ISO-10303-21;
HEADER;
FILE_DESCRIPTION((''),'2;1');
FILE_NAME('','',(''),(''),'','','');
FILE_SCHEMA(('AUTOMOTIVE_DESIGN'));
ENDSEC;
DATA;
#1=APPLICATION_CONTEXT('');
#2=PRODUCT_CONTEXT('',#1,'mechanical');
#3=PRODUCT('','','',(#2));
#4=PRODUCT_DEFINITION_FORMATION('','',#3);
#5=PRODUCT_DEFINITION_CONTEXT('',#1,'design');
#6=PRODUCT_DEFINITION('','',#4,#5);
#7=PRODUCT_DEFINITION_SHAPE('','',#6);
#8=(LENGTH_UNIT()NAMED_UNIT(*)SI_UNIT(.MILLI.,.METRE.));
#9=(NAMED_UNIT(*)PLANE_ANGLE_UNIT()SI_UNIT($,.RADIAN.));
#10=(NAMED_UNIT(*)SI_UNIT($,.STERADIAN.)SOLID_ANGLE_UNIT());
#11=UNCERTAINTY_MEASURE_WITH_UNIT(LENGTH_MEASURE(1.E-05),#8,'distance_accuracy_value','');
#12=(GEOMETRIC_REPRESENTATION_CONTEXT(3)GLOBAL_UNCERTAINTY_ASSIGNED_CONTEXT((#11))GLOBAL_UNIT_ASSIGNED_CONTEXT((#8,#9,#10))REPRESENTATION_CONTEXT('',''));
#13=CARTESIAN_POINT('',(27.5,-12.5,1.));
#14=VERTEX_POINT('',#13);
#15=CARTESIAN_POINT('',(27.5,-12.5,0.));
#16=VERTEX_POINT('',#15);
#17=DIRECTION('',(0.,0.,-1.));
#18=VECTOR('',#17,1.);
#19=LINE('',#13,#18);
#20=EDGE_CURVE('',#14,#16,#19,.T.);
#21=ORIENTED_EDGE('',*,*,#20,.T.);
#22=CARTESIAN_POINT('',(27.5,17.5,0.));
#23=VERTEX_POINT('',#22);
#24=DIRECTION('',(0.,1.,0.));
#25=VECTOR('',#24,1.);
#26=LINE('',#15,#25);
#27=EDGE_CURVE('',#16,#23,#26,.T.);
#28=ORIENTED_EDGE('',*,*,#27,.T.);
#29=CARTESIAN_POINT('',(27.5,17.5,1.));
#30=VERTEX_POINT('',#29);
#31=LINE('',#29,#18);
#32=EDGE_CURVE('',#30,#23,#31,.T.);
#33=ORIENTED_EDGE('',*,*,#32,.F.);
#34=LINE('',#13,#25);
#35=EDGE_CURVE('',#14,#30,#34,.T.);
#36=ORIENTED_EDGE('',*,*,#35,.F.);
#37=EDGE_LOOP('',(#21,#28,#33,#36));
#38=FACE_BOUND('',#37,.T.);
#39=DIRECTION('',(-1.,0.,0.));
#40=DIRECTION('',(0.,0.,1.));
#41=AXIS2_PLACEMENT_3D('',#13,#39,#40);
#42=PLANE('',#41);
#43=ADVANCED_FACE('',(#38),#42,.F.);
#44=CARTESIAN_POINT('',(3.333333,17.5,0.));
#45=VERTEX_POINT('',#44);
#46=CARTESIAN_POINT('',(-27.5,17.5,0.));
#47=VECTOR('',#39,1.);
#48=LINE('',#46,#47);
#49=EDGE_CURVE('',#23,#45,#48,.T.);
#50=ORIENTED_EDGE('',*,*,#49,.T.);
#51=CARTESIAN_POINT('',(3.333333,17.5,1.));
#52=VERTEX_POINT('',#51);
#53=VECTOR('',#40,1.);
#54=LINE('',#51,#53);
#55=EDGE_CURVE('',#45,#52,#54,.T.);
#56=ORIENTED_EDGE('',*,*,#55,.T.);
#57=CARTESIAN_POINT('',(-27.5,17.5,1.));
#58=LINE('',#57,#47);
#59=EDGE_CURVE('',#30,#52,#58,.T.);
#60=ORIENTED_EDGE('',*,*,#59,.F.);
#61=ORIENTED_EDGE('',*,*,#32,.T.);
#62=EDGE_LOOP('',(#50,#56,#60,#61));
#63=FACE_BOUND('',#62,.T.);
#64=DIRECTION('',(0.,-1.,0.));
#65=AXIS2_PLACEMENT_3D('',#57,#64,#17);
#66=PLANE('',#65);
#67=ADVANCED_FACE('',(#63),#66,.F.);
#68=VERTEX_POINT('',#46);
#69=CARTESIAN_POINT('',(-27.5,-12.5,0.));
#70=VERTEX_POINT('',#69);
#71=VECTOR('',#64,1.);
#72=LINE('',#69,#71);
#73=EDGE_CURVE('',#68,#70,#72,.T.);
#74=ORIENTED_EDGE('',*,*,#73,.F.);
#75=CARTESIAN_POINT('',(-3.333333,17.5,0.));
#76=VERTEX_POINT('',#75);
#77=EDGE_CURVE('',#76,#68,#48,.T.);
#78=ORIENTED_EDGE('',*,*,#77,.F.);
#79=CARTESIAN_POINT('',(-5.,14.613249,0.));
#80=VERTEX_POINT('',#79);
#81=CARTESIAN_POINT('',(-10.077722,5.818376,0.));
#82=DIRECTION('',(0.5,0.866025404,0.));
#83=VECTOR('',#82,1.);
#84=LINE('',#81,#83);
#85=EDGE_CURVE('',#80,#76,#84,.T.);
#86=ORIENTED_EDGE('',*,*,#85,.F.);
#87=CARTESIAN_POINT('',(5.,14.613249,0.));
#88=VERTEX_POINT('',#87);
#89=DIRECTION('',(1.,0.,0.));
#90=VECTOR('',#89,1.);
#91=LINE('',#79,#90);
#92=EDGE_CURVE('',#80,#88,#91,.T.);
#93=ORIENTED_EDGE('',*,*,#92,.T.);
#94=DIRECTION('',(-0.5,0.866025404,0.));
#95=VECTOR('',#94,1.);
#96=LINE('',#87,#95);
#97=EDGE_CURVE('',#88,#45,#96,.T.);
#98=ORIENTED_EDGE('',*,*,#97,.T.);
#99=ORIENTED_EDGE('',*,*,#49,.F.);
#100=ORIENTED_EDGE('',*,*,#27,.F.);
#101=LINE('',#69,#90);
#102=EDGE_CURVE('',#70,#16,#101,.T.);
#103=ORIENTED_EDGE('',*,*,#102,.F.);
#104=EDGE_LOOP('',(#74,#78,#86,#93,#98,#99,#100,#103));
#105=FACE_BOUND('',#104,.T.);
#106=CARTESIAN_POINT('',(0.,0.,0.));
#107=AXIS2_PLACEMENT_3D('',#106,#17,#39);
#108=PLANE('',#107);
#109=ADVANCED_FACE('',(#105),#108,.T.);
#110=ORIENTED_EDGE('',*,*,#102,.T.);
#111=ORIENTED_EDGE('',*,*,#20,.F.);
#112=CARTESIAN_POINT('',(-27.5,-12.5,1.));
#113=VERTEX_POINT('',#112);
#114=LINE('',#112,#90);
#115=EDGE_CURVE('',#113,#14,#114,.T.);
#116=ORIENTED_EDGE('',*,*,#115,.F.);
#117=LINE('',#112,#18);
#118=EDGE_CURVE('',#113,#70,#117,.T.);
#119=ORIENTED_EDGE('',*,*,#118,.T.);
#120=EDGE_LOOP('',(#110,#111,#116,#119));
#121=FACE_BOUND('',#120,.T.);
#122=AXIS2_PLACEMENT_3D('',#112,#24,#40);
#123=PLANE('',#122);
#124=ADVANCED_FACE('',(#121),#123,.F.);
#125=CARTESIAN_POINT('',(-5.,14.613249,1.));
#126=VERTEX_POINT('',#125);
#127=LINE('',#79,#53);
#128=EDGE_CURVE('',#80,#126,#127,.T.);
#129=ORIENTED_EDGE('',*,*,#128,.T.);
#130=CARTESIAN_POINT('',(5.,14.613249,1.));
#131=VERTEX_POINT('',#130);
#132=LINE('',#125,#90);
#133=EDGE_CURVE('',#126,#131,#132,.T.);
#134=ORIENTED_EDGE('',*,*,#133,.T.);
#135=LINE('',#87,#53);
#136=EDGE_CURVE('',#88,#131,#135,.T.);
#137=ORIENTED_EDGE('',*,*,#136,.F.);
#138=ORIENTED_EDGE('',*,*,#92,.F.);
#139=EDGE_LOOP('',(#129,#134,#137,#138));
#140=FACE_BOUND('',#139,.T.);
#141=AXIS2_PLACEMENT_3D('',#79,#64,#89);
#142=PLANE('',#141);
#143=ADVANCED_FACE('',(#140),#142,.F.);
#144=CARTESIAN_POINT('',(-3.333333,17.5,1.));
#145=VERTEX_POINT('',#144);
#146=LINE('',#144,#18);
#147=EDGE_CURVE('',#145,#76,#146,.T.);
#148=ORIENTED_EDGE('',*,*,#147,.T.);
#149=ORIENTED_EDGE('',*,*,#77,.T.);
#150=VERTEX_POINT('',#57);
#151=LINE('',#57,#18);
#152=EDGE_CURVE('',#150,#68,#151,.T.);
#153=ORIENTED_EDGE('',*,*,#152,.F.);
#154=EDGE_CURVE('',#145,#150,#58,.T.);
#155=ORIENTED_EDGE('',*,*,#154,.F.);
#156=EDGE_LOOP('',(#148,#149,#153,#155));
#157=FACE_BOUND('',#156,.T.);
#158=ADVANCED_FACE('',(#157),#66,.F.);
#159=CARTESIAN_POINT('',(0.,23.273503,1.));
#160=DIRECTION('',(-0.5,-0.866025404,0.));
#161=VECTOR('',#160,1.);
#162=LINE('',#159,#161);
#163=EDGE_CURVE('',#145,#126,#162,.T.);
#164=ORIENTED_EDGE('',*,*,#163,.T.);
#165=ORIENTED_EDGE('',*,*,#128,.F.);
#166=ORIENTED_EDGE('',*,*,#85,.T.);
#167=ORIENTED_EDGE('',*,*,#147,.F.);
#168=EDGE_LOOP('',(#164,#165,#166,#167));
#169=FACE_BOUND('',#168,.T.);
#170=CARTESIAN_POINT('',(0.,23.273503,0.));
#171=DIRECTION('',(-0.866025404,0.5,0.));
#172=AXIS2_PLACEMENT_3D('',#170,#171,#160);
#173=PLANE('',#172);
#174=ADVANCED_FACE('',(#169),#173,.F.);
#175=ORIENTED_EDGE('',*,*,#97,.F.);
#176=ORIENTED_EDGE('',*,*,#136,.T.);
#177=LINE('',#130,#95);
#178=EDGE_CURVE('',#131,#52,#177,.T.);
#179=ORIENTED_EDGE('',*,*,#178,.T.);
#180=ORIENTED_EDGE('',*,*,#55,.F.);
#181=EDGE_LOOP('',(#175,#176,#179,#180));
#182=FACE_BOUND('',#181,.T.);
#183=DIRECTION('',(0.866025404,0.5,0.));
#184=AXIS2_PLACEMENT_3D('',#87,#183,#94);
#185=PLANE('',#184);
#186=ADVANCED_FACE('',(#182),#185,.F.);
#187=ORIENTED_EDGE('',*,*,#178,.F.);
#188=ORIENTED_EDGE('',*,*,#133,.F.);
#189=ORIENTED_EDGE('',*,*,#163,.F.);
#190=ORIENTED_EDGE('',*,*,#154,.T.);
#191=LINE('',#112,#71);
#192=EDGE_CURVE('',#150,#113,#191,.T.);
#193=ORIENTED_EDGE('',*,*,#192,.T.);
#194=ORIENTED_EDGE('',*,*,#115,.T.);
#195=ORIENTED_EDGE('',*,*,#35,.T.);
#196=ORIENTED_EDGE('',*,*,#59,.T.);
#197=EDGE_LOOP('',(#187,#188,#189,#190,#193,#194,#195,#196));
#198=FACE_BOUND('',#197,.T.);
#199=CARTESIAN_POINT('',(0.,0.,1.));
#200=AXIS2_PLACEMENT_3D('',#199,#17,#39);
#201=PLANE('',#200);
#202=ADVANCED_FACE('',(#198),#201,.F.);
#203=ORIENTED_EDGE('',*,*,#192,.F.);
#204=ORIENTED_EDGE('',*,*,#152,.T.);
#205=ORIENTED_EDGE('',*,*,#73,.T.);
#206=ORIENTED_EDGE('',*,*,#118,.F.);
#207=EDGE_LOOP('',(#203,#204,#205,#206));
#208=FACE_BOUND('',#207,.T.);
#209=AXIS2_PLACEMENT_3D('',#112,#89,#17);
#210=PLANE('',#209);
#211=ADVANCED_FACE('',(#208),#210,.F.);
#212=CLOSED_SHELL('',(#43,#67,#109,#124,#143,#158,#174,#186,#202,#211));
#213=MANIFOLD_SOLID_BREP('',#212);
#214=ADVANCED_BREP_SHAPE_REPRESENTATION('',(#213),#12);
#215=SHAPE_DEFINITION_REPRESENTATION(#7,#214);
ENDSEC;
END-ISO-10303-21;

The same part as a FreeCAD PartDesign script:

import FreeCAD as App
import Part
import Sketcher

V = App.Vector
Q = App.Units.Quantity

doc = App.newDocument("Part")
body = doc.addObject("PartDesign::Body", "Body")

# Sketch on XY plane
sketch1 = doc.addObject("Sketcher::SketchObject", "Sketch")
body.addObject(sketch1)
sketch1.AttachmentSupport = (doc.XY_Plane, [""])
sketch1.MapMode = "FlatFace"
sketch1.addGeometry(Part.LineSegment(V(-28, 18, 0), V(-28, -12, 0)), False)
sketch1.addGeometry(Part.LineSegment(V(-28, -12, 0), V(28, -12, 0)), False)
sketch1.addGeometry(Part.LineSegment(V(28, -12, 0), V(28, 18, 0)), False)
sketch1.addGeometry(Part.LineSegment(V(28, 18, 0), V(-28, 18, 0)), False)
sketch1.addConstraint(Sketcher.Constraint("Coincident", 0, 2, 1, 1))
sketch1.addConstraint(Sketcher.Constraint("Coincident", 1, 2, 2, 1))
sketch1.addConstraint(Sketcher.Constraint("Coincident", 2, 2, 3, 1))
sketch1.addConstraint(Sketcher.Constraint("Coincident", 3, 2, 0, 1))
sketch1.addConstraint(Sketcher.Constraint("Vertical", 0))
sketch1.addConstraint(Sketcher.Constraint("Horizontal", 1))
sketch1.addConstraint(Sketcher.Constraint("Vertical", 2))
sketch1.addConstraint(Sketcher.Constraint("Horizontal", 3))
sketch1.addConstraint(Sketcher.Constraint("DistanceX", 1, 1, 1, 2, Q("55 mm")))
sketch1.addConstraint(Sketcher.Constraint("DistanceY", 0, 2, 0, 1, Q("30 mm")))
sketch1.addConstraint(Sketcher.Constraint("DistanceX", 0, 2, -1, 1, Q("27.5 mm")))
sketch1.addConstraint(Sketcher.Constraint("DistanceY", 0, 2, -1, 1, Q("12.5 mm")))
pad1 = doc.addObject("PartDesign::Pad", "Pad")
body.addObject(pad1)
pad1.Profile = sketch1
pad1.Length = 1

# Sketch on XY plane
sketch2 = doc.addObject("Sketcher::SketchObject", "Sketch001")
body.addObject(sketch2)
sketch2.AttachmentSupport = (doc.XY_Plane, [""])
sketch2.MapMode = "FlatFace"
sketch2.AttachmentOffset = App.Placement(V(0, 0, 1), App.Rotation())
sketch2.addGeometry(Part.LineSegment(V(0, 23, 0), V(-5, 15, 0)), False)
sketch2.addGeometry(Part.LineSegment(V(-5, 15, 0), V(5, 15, 0)), False)
sketch2.addGeometry(Part.LineSegment(V(5, 15, 0), V(0, 23, 0)), False)
sketch2.addConstraint(Sketcher.Constraint("Coincident", 0, 2, 1, 1))
sketch2.addConstraint(Sketcher.Constraint("Coincident", 1, 2, 2, 1))
sketch2.addConstraint(Sketcher.Constraint("Coincident", 2, 2, 0, 1))
sketch2.addConstraint(Sketcher.Constraint("Horizontal", 1))
sketch2.addConstraint(Sketcher.Constraint("PointOnObject", 2, 2, -2))
sketch2.addConstraint(Sketcher.Constraint("Equal", 0, 2))
sketch2.addConstraint(Sketcher.Constraint("DistanceX", 1, 1, 1, 2, Q("10 mm")))
sketch2.addConstraint(Sketcher.Constraint("Angle", 0, Q("-120 deg")))
sketch2.addConstraint(Sketcher.Constraint("DistanceY", -1, 1, 0, 2, Q("14.613249 mm")))
pocket1 = doc.addObject("PartDesign::Pocket", "Pocket")
body.addObject(pocket1)
pocket1.Profile = sketch2
pocket1.Type = "ThroughAll"

doc.recompute()
